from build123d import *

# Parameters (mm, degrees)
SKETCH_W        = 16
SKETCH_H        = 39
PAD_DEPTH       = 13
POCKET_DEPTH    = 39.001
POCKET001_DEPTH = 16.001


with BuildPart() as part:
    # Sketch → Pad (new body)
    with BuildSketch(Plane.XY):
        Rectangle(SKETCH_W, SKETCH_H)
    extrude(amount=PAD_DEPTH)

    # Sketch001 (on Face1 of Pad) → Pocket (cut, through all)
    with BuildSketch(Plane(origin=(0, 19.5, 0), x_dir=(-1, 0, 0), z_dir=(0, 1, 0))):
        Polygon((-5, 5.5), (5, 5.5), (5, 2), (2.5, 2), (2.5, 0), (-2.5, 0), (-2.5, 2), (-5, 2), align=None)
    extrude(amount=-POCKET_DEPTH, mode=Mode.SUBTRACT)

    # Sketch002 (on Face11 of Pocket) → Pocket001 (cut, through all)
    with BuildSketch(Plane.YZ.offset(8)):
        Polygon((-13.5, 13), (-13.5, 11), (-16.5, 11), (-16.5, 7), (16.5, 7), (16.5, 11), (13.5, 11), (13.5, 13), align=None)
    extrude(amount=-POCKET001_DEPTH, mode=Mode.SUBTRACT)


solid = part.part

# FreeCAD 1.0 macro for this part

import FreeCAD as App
import Part
import Sketcher


def add_polygon(sketch, points):
    """Adds a closed chain of lines whose ends are joined by coincident constraints."""
    first, n = sketch.GeometryCount, len(points)
    for a, b in zip(points, points[1:] + points[:1]):
        sketch.addGeometry(Part.LineSegment(App.Vector(*a, 0), App.Vector(*b, 0)), False)
    for i in range(n):
        sketch.addConstraint(Sketcher.Constraint("Coincident", first + i, 2, first + (i + 1) % n, 1))

doc = App.newDocument("Part")
body = doc.addObject("PartDesign::Body", "Body")

sketch1 = doc.addObject("Sketcher::SketchObject", "Sketch")
body.addObject(sketch1)
sketch1.AttachmentSupport = (doc.XY_Plane, [""])
sketch1.MapMode = "FlatFace"
add_polygon(sketch1, [(-8, 20), (-8, -20), (8, -20), (8, 20)])
sketch1.addConstraint([
    Sketcher.Constraint("Vertical", 0),
    Sketcher.Constraint("Horizontal", 1),
    Sketcher.Constraint("Vertical", 2),
    Sketcher.Constraint("Horizontal", 3),
    Sketcher.Constraint("Symmetric", 0, 2, 2, 2, -1, 1),
    Sketcher.Constraint("DistanceX", 1, 1, 1, 2, 16.0),
    Sketcher.Constraint("DistanceY", 0, 2, 0, 1, 39.0),
])
pad1 = doc.addObject("PartDesign::Pad", "Pad")
body.addObject(pad1)
pad1.Profile = sketch1
pad1.Length = 13

sketch2 = doc.addObject("Sketcher::SketchObject", "Sketch001")
body.addObject(sketch2)
sketch2.AttachmentSupport = (doc.XZ_Plane, [""])
sketch2.MapMode = "FlatFace"
sketch2.AttachmentOffset = App.Placement(App.Vector(0, 0, -19.5), App.Rotation())
add_polygon(sketch2, [(-5, 5.5), (5, 5.5), (5, 2), (2.5, 2), (2.5, 0), (-2.5, 0), (-2.5, 2), (-5, 2)])
sketch2.addConstraint([
    Sketcher.Constraint("Horizontal", 0),
    Sketcher.Constraint("Vertical", 1),
    Sketcher.Constraint("Horizontal", 2),
    Sketcher.Constraint("Vertical", 3),
    Sketcher.Constraint("Horizontal", 4),
    Sketcher.Constraint("Vertical", 5),
    Sketcher.Constraint("Horizontal", 6),
    Sketcher.Constraint("Vertical", 7),
    Sketcher.Constraint("Symmetric", 3, 2, 4, 2, -1, 1),
    Sketcher.Constraint("Symmetric", 1, 2, 6, 2, -2),
    Sketcher.Constraint("DistanceX", 0, 1, 0, 2, 10.0),
    Sketcher.Constraint("DistanceX", 4, 2, 4, 1, 5.0),
    Sketcher.Constraint("DistanceY", 3, 2, 3, 1, 2.0),
    Sketcher.Constraint("DistanceY", 1, 2, 1, 1, 3.5),
])
pocket1 = doc.addObject("PartDesign::Pocket", "Pocket")
body.addObject(pocket1)
pocket1.Profile = sketch2
pocket1.Type = "ThroughAll"
pocket1.Reversed = True

sketch3 = doc.addObject("Sketcher::SketchObject", "Sketch002")
body.addObject(sketch3)
sketch3.AttachmentSupport = (doc.YZ_Plane, [""])
sketch3.MapMode = "FlatFace"
sketch3.AttachmentOffset = App.Placement(App.Vector(0, 0, 8), App.Rotation())
add_polygon(sketch3, [(-13.5, 13), (-13.5, 11), (-16.5, 11), (-16.5, 7), (16.5, 7), (16.5, 11), (13.5, 11), (13.5, 13)])
sketch3.addConstraint([
    Sketcher.Constraint("Vertical", 0),
    Sketcher.Constraint("Horizontal", 1),
    Sketcher.Constraint("Vertical", 2),
    Sketcher.Constraint("Horizontal", 3),
    Sketcher.Constraint("Vertical", 4),
    Sketcher.Constraint("Horizontal", 5),
    Sketcher.Constraint("Vertical", 6),
    Sketcher.Constraint("Horizontal", 7),
    Sketcher.Constraint("Symmetric", 1, 2, 4, 2, -2),
    Sketcher.Constraint("Equal", 1, 5),
    Sketcher.Constraint("DistanceX", 1, 2, 1, 1, 3.0),
    Sketcher.Constraint("DistanceX", 3, 1, 3, 2, 33.0),
    Sketcher.Constraint("DistanceY", 0, 2, 0, 1, 2.0),
    Sketcher.Constraint("DistanceY", 2, 2, 2, 1, 4.0),
    Sketcher.Constraint("DistanceY", -1, 1, 0, 2, 11.0),
])
pocket2 = doc.addObject("PartDesign::Pocket", "Pocket001")
body.addObject(pocket2)
pocket2.Profile = sketch3
pocket2.Type = "ThroughAll"

doc.recompute()
